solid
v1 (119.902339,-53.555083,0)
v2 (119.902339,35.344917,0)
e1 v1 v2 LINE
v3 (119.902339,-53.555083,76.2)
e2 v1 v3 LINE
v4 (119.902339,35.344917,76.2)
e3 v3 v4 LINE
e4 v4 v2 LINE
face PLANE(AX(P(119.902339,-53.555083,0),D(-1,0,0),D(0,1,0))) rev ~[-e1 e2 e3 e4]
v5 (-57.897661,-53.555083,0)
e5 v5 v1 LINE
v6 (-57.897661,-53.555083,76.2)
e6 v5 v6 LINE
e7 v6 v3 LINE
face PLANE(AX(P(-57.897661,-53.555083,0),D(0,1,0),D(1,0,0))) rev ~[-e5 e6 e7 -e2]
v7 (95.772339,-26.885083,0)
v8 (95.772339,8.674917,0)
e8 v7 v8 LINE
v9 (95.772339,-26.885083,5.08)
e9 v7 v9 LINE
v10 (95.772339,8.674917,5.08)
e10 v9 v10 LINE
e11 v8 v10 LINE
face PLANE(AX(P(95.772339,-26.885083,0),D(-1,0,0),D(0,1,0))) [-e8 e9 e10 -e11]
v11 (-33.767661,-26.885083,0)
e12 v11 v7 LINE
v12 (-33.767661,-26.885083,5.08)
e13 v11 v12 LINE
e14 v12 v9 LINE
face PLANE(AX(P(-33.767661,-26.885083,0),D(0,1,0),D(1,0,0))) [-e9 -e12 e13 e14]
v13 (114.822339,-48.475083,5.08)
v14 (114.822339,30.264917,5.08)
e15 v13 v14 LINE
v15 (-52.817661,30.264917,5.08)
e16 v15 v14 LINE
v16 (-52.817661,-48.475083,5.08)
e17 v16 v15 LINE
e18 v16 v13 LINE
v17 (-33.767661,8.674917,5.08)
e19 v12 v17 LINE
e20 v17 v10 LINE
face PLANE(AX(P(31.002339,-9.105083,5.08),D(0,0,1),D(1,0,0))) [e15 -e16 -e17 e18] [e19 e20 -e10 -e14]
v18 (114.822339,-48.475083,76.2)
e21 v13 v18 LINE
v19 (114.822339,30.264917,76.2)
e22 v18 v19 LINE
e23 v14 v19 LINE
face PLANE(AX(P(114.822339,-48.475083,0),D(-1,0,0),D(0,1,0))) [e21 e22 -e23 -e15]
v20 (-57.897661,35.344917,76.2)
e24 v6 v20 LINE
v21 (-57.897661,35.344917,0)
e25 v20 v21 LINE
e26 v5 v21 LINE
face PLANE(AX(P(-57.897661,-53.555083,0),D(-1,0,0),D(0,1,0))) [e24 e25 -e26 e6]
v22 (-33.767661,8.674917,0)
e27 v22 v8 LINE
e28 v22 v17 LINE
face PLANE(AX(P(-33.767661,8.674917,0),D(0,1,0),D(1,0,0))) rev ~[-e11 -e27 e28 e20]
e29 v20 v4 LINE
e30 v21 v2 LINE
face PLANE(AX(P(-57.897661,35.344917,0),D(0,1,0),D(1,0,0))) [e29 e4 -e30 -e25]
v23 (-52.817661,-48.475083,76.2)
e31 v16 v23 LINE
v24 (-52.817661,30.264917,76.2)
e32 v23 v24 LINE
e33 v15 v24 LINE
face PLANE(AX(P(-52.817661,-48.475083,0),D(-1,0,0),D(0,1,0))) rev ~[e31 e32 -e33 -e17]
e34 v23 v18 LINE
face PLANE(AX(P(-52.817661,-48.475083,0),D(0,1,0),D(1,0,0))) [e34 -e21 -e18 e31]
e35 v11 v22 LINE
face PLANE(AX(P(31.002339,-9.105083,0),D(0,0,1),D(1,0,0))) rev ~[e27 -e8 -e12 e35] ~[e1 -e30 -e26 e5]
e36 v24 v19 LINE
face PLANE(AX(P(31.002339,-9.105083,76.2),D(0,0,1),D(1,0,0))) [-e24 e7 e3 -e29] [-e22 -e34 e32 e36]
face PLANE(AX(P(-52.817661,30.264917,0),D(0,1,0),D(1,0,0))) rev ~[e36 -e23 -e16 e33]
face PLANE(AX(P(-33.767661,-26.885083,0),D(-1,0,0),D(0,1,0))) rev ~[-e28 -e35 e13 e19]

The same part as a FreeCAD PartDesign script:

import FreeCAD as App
import Part
import Sketcher
Q = App.Units.Quantity


def add_polygon(sketch, points):
    """Adds a closed chain of lines whose ends are joined by coincident constraints."""
    first, n = sketch.GeometryCount, len(points)
    for a, b in zip(points, points[1:] + points[:1]):
        sketch.addGeometry(Part.LineSegment(App.Vector(*a, 0), App.Vector(*b, 0)), False)
    for i in range(n):
        sketch.addConstraint(Sketcher.Constraint("Coincident", first + i, 2, first + (i + 1) % n, 1))

doc = App.newDocument("Part")
body = doc.addObject("PartDesign::Body", "Body")

# Sketch on XY plane
sketch1 = doc.addObject("Sketcher::SketchObject", "Sketch")
body.addObject(sketch1)
sketch1.AttachmentSupport = (doc.XY_Plane, [""])
sketch1.MapMode = "FlatFace"
add_polygon(sketch1, [(-57.897661, 35.344917), (-57.897661, -53.555083), (119.902339, -53.555083), (119.902339, 35.344917)])  # lines 0-3
add_polygon(sketch1, [(114.822339, -48.475083), (-52.817661, -48.475083), (-52.817661, 30.264917), (114.822339, 30.264917)])  # lines 4-7
sketch1.addConstraint([
    Sketcher.Constraint("Vertical", 0),
    Sketcher.Constraint("Horizontal", 1),
    Sketcher.Constraint("Vertical", 2),
    Sketcher.Constraint("Horizontal", 3),
    Sketcher.Constraint("Horizontal", 4),
    Sketcher.Constraint("Vertical", 5),
    Sketcher.Constraint("Horizontal", 6),
    Sketcher.Constraint("Vertical", 7),
    Sketcher.Constraint("DistanceX", 1, 1, 1, 2, Q("7 in")),
    Sketcher.Constraint("DistanceX", 4, 2, 4, 1, Q("6.6 in")),
    Sketcher.Constraint("DistanceY", 0, 2, 0, 1, Q("3.5 in")),
    Sketcher.Constraint("DistanceY", 5, 1, 5, 2, Q("3.1 in")),
    Sketcher.Constraint("DistanceX", 0, 2, 4, 2, Q("0.2 in")),
    Sketcher.Constraint("DistanceY", 0, 2, 4, 2, Q("0.2 in")),
    Sketcher.Constraint("DistanceX", 0, 2, -1, 1, Q("57.897661 mm")),
    Sketcher.Constraint("DistanceY", 0, 2, -1, 1, Q("53.555083 mm")),
])
pad1 = doc.addObject("PartDesign::Pad", "Pad")
body.addObject(pad1)
pad1.Profile = sketch1
pad1.Length = Q("3 in")

# Sketch on XY plane
sketch2 = doc.addObject("Sketcher::SketchObject", "Sketch001")
body.addObject(sketch2)
sketch2.AttachmentSupport = (doc.XY_Plane, [""])
sketch2.MapMode = "FlatFace"
add_polygon(sketch2, [(-57.897661, 35.344917), (-57.897661, -53.555083), (119.902339, -53.555083), (119.902339, 35.344917)])  # lines 0-3
add_polygon(sketch2, [(95.772339, -26.885083), (-33.767661, -26.885083), (-33.767661, 8.674917), (95.772339, 8.674917)])  # lines 4-7
sketch2.addConstraint([
    Sketcher.Constraint("Vertical", 0),
    Sketcher.Constraint("Horizontal", 1),
    Sketcher.Constraint("Vertical", 2),
    Sketcher.Constraint("Horizontal", 3),
    Sketcher.Constraint("Horizontal", 4),
    Sketcher.Constraint("Vertical", 5),
    Sketcher.Constraint("Horizontal", 6),
    Sketcher.Constraint("Vertical", 7),
    Sketcher.Constraint("DistanceX", 1, 1, 1, 2, Q("7 in")),
    Sketcher.Constraint("DistanceX", 4, 2, 4, 1, Q("5.1 in")),
    Sketcher.Constraint("DistanceY", 0, 2, 0, 1, Q("3.5 in")),
    Sketcher.Constraint("DistanceY", 5, 1, 5, 2, Q("1.4 in")),
    Sketcher.Constraint("DistanceX", 0, 2, 4, 2, Q("0.95 in")),
    Sketcher.Constraint("DistanceY", 0, 2, 4, 2, Q("1.05 in")),
    Sketcher.Constraint("DistanceX", 0, 2, -1, 1, Q("57.897661 mm")),
    Sketcher.Constraint("DistanceY", 0, 2, -1, 1, Q("53.555083 mm")),
])
pad2 = doc.addObject("PartDesign::Pad", "Pad001")
body.addObject(pad2)
pad2.Profile = sketch2
pad2.Length = Q("0.2 in")

doc.recompute()
